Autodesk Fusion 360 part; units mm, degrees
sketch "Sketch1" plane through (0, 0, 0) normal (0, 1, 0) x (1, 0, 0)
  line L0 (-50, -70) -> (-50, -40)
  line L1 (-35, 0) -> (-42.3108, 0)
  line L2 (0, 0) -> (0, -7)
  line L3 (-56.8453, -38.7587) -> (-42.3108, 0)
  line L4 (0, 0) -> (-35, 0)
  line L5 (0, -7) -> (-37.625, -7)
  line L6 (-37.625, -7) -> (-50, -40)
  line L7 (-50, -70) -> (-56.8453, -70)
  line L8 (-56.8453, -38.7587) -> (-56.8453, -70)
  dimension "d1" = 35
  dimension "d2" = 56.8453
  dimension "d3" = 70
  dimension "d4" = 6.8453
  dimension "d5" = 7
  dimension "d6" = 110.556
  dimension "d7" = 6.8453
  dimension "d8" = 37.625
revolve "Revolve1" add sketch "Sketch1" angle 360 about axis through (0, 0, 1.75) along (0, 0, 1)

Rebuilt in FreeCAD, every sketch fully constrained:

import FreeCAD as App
import Part
import Sketcher

V = App.Vector

doc = App.newDocument("Part")
body = doc.addObject("PartDesign::Body", "Body")

# Sketch on XZ plane
sketch1 = body.newObject("Sketcher::SketchObject", "Sketch")
sketch1.AttachmentSupport = (doc.getObject("XZ_Plane"), [""])
sketch1.MapMode = "FlatFace"
sketch1.addGeometry([
    Part.LineSegment(V(-57, 70, 0), V(-50, 70, 0)),  # 0
    Part.LineSegment(V(-50, 70, 0), V(-50, 40, 0)),  # 1
    Part.LineSegment(V(-50, 40, 0), V(-38, 7, 0)),  # 2
    Part.LineSegment(V(-38, 7, 0), V(0, 7, 0)),  # 3
    Part.LineSegment(V(0, 7, 0), V(0, 0, 0)),  # 4
    Part.LineSegment(V(0, 0, 0), V(-42, 0, 0)),  # 5
    Part.LineSegment(V(-42, 0, 0), V(-57, 39, 0)),  # 6
    Part.LineSegment(V(-57, 39, 0), V(-57, 70, 0)),  # 7
], False)
sketch1.addConstraint([
    Sketcher.Constraint("Coincident", 0, 2, 1, 1),
    Sketcher.Constraint("Coincident", 1, 2, 2, 1),
    Sketcher.Constraint("Coincident", 2, 2, 3, 1),
    Sketcher.Constraint("Coincident", 3, 2, 4, 1),
    Sketcher.Constraint("Coincident", 4, 2, 5, 1),
    Sketcher.Constraint("Coincident", 5, 2, 6, 1),
    Sketcher.Constraint("Coincident", 6, 2, 7, 1),
    Sketcher.Constraint("Coincident", 7, 2, 0, 1),
    Sketcher.Constraint("Horizontal", 0),
    Sketcher.Constraint("Vertical", 1),
    Sketcher.Constraint("Horizontal", 3),
    Sketcher.Constraint("Vertical", 4),
    Sketcher.Constraint("Horizontal", 5),
    Sketcher.Constraint("Vertical", 7),
    Sketcher.Constraint("Coincident", 4, 2, -1, 1),
    Sketcher.Constraint("Parallel", 2, 6),
    Sketcher.Constraint("DistanceY", 4, 2, 4, 1, 7.0),
    Sketcher.Constraint("DistanceY", -1, 1, 0, 2, 70.0),
    Sketcher.Constraint("DistanceX", 3, 1, 3, 2, 37.625),
    Sketcher.Constraint("DistanceY", 1, 2, 1, 1, 30.0),
    Sketcher.Constraint("DistanceX", 0, 1, 0, 2, 6.8453),
    Sketcher.Constraint("DistanceX", 0, 2, -1, 1, 50.0),
    Sketcher.Constraint("DistanceX", 5, 2, 5, 1, 42.3108),
])
revolution = body.newObject("PartDesign::Revolution", "Revolution")
revolution.Profile = sketch1
revolution.ReferenceAxis = (sketch1, ["V_Axis"])
revolution.Angle = 360

doc.recompute()
